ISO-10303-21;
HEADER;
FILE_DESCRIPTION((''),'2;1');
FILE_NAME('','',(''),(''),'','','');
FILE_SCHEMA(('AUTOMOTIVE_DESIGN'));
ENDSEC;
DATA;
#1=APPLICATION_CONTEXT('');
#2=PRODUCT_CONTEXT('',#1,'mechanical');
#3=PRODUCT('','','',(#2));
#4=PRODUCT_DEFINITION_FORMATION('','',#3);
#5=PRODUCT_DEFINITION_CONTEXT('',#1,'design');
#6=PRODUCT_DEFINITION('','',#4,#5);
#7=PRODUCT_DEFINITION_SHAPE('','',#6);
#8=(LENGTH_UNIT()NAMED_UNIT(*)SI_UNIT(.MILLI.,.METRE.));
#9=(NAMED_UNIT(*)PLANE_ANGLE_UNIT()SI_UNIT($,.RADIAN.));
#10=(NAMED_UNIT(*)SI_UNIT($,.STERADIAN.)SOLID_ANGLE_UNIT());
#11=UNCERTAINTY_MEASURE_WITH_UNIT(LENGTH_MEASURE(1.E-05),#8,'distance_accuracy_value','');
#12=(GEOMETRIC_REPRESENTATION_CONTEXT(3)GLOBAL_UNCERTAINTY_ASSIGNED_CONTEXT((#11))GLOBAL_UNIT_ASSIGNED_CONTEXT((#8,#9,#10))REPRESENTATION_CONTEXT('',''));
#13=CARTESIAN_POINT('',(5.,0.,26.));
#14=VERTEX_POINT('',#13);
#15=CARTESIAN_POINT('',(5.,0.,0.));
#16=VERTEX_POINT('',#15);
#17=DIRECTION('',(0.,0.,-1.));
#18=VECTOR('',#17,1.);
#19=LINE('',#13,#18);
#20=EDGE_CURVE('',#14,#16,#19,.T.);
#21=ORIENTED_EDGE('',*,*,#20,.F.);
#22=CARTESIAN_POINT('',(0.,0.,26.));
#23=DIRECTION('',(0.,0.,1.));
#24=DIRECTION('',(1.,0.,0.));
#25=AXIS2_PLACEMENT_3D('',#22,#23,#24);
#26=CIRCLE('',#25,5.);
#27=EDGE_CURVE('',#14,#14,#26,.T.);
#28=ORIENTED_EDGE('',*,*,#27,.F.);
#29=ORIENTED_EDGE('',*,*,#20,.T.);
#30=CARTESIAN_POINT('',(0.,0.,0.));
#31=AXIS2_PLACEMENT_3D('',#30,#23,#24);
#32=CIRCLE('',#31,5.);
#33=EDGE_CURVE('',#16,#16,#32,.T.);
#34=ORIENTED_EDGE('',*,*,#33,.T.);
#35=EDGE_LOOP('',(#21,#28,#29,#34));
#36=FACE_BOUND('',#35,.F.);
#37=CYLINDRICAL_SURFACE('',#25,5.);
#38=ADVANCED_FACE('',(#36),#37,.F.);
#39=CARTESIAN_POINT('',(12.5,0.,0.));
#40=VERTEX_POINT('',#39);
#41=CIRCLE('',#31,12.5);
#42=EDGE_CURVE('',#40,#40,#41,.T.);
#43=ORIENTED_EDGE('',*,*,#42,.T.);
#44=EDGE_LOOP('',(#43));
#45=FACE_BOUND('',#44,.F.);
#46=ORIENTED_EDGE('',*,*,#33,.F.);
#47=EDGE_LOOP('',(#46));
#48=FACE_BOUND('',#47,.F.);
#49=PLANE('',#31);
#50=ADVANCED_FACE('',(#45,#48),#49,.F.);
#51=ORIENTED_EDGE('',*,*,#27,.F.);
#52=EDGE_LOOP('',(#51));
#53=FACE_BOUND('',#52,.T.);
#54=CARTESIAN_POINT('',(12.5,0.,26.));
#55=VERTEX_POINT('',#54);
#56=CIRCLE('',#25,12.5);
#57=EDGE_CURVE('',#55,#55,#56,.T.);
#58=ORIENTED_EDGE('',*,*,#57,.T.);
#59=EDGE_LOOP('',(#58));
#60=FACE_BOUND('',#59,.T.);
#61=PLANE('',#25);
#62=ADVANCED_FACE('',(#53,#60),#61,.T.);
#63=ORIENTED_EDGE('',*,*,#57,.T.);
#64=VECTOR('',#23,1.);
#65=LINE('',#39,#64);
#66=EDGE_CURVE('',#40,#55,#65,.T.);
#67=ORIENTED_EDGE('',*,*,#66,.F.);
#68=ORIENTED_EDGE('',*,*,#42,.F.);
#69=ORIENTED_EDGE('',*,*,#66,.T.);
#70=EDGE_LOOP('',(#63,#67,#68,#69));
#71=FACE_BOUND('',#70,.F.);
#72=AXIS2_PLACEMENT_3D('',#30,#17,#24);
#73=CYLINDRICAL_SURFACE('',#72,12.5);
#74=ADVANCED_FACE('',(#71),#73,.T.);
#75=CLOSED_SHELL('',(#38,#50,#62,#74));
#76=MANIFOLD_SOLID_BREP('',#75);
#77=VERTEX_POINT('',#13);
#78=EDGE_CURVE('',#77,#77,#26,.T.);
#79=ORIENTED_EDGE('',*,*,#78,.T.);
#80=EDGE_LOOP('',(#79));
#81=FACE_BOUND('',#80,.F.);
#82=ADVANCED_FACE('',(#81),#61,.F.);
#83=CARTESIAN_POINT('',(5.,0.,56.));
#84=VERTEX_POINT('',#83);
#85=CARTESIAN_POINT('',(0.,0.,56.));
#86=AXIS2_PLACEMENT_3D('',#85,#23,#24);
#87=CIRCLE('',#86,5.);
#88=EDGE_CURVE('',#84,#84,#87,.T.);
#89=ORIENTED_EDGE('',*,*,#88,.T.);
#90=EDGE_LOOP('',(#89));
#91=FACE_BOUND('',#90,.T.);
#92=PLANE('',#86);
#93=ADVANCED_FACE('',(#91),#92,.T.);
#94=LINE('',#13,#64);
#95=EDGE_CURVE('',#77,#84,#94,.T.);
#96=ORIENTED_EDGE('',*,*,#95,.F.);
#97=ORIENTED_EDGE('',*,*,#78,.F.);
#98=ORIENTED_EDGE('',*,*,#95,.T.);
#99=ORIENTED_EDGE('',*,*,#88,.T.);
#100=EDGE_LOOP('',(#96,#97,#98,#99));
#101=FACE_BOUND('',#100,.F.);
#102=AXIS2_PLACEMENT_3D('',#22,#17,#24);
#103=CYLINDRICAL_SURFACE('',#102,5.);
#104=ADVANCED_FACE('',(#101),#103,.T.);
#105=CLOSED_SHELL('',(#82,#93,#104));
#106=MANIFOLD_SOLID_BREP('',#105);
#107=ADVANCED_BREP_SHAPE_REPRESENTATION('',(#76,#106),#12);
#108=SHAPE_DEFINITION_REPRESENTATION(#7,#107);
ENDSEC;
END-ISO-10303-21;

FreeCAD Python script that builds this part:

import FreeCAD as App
import Part
import Sketcher

doc = App.newDocument("Part")
body = doc.addObject("PartDesign::Body", "Body")

# Sketch on XY plane
sketch1 = body.newObject("Sketcher::SketchObject", "Sketch")
sketch1.AttachmentSupport = (doc.getObject("XY_Plane"), [""])
sketch1.MapMode = "FlatFace"
sketch1.addGeometry(Part.Circle(App.Vector(0, 0, 0), App.Vector(0, 0, 1), 12), False)
sketch1.addConstraint(Sketcher.Constraint("Coincident", 0, 3, -1, 1))
sketch1.addConstraint(Sketcher.Constraint("Diameter", 0, 25.0))
pad1 = body.newObject("PartDesign::Pad", "Pad")
pad1.Profile = sketch1
pad1.Length = 26

# Sketch on XY plane
sketch2 = body.newObject("Sketcher::SketchObject", "Sketch001")
sketch2.AttachmentSupport = (doc.getObject("XY_Plane"), [""])
sketch2.MapMode = "FlatFace"
sketch2.AttachmentOffset = App.Placement(App.Vector(0, 0, 26), App.Rotation())
sketch2.addGeometry(Part.Circle(App.Vector(0, 0, 0), App.Vector(0, 0, 1), 5), False)
sketch2.addConstraint(Sketcher.Constraint("Coincident", 0, 3, -1, 1))
sketch2.addConstraint(Sketcher.Constraint("Diameter", 0, 10.0))
pocket1 = body.newObject("PartDesign::Pocket", "Pocket")
pocket1.Profile = sketch2
pocket1.Length = 26
body2 = doc.addObject("PartDesign::Body", "Body001")

# Sketch on XY plane
sketch3 = body2.newObject("Sketcher::SketchObject", "Sketch002")
sketch3.AttachmentSupport = (doc.getObject("XY_Plane001"), [""])
sketch3.MapMode = "FlatFace"
sketch3.AttachmentOffset = App.Placement(App.Vector(0, 0, 26), App.Rotation())
sketch3.addGeometry(Part.Circle(App.Vector(0, 0, 0), App.Vector(0, 0, 1), 5), False)
sketch3.addConstraint(Sketcher.Constraint("Coincident", 0, 3, -1, 1))
sketch3.addConstraint(Sketcher.Constraint("Diameter", 0, 10.0))
pad2 = body2.newObject("PartDesign::Pad", "Pad001")
pad2.Profile = sketch3
pad2.Length = 30

doc.recompute()
